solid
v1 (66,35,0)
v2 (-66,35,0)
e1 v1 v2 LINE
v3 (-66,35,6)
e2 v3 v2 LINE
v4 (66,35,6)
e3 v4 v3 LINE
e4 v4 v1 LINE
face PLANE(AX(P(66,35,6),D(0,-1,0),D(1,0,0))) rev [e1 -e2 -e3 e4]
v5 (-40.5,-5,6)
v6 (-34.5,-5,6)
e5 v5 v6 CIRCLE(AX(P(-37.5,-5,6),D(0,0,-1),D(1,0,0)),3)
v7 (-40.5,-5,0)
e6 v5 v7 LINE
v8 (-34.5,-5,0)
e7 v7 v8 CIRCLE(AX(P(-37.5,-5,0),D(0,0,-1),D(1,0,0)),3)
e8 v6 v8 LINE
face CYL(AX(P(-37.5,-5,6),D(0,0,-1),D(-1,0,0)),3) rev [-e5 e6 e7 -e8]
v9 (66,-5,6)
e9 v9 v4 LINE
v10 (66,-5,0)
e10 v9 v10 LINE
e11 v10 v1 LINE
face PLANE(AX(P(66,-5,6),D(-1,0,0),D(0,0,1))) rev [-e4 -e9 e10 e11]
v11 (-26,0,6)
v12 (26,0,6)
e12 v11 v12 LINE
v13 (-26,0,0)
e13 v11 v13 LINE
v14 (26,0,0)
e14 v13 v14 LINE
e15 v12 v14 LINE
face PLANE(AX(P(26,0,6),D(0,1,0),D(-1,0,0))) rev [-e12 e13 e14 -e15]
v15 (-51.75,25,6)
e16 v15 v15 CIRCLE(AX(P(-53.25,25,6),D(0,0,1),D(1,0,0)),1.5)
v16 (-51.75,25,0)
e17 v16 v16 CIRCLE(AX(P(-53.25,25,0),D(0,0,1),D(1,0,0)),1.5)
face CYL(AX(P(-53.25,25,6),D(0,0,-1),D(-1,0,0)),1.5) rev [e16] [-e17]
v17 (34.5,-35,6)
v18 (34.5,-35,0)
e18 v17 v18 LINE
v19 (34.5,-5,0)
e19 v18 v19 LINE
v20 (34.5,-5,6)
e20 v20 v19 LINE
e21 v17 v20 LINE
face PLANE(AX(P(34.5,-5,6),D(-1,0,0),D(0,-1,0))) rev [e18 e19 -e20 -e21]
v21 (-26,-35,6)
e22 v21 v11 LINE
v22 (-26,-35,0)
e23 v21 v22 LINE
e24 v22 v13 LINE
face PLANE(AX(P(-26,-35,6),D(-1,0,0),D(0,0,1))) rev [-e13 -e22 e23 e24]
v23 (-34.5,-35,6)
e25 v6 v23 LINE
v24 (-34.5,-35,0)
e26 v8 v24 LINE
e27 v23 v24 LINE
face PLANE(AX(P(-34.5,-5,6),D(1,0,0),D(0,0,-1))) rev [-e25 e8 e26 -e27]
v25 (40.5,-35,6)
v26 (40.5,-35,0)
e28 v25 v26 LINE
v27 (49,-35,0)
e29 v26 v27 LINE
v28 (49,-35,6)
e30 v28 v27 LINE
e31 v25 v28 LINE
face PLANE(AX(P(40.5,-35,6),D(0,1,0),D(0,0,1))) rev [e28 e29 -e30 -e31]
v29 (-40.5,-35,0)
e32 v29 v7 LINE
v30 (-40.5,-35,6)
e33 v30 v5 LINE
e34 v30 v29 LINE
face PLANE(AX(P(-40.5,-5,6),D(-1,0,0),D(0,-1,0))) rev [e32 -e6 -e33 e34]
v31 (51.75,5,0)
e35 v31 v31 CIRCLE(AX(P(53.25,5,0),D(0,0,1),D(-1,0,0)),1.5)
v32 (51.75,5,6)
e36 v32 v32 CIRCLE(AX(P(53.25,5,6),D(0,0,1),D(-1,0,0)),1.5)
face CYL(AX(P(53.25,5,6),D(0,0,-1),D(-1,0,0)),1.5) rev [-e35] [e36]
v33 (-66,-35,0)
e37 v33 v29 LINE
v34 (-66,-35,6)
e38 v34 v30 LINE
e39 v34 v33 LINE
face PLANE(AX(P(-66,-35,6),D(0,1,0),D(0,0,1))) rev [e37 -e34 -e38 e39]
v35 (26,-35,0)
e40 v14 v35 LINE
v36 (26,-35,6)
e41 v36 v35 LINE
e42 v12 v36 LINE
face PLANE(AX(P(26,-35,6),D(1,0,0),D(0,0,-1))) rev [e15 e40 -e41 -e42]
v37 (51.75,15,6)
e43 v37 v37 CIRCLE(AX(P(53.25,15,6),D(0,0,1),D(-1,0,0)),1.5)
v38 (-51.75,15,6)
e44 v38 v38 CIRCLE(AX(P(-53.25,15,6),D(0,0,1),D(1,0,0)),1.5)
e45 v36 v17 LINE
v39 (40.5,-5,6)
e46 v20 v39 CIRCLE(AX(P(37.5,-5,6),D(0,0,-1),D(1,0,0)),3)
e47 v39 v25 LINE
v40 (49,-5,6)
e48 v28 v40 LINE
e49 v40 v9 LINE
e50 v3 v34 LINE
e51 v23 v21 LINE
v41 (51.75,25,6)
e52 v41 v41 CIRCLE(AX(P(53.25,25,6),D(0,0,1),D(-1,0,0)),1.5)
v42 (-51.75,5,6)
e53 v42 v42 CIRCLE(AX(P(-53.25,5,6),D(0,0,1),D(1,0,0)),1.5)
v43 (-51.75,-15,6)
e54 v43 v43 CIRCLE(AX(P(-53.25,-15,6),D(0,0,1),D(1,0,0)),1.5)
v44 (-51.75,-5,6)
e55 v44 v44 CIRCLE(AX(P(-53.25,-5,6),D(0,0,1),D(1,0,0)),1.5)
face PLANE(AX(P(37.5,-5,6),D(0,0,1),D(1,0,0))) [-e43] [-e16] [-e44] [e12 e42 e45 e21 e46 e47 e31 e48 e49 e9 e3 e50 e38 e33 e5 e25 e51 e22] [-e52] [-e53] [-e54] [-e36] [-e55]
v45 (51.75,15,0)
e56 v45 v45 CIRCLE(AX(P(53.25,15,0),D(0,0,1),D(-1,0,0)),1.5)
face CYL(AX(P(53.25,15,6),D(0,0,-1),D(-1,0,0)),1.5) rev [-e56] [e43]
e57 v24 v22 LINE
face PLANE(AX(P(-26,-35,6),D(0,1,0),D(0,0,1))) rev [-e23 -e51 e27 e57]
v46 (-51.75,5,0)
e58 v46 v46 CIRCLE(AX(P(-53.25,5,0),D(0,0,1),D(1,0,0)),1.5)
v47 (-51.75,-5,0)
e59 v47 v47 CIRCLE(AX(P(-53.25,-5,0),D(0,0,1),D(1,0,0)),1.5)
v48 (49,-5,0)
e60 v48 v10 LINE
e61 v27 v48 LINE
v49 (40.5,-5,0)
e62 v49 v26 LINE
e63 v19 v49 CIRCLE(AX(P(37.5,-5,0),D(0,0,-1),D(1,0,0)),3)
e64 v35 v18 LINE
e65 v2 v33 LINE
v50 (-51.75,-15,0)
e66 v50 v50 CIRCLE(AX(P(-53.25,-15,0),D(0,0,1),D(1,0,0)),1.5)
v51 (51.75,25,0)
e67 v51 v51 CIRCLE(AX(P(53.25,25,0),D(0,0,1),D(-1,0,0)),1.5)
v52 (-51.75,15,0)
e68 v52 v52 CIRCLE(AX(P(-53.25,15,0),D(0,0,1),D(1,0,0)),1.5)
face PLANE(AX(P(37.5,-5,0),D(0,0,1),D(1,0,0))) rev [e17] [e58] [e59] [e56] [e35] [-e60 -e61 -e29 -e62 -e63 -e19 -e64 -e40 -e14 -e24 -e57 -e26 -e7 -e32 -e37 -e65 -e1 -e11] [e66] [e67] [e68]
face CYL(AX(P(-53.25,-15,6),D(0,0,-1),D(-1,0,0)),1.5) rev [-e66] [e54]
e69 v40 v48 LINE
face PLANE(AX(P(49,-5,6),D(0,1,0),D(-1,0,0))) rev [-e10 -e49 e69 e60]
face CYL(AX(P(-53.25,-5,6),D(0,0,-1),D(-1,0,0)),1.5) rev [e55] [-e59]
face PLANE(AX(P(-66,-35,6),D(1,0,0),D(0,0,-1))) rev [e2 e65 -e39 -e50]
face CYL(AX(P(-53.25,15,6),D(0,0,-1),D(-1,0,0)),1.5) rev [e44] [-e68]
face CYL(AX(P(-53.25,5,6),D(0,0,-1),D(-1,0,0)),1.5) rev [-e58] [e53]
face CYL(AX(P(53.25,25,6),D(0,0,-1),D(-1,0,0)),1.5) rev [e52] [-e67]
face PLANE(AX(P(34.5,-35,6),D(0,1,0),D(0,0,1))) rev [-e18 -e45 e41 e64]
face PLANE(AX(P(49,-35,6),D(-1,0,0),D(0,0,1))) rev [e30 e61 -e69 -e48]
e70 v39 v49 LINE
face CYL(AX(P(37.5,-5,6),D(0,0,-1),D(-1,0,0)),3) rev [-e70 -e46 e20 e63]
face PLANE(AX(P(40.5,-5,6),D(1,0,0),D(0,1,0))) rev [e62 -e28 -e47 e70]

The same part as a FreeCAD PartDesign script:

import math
import FreeCAD as App
import Part
import Sketcher
Q = App.Units.Quantity

doc = App.newDocument("Part")
body = doc.addObject("PartDesign::Body", "Body")

# Sketch on XY plane
sketch1 = doc.addObject("Sketcher::SketchObject", "Sketch")
body.addObject(sketch1)
sketch1.AttachmentSupport = (doc.XY_Plane, [""])
sketch1.MapMode = "FlatFace"
sketch1.addGeometry([
    Part.LineSegment(App.Vector(-66, -35, 0), App.Vector(-40.5, -35, 0)),  # 0
    Part.LineSegment(App.Vector(-40.5, -35, 0), App.Vector(-40.5, -5, 0)),  # 1
    Part.ArcOfCircle(Part.Circle(App.Vector(-37.5, -5, 0), App.Vector(0, 0, 1), 3), math.radians(0), math.radians(180)),  # 2
    Part.LineSegment(App.Vector(-34.5, -5, 0), App.Vector(-34.5, -35, 0)),  # 3
    Part.LineSegment(App.Vector(-34.5, -35, 0), App.Vector(-26, -35, 0)),  # 4
    Part.LineSegment(App.Vector(-26, -35, 0), App.Vector(-26, 0, 0)),  # 5
    Part.LineSegment(App.Vector(-26, 0, 0), App.Vector(26, 0, 0)),  # 6
    Part.LineSegment(App.Vector(26, 0, 0), App.Vector(26, -35, 0)),  # 7
    Part.LineSegment(App.Vector(26, -35, 0), App.Vector(34.5, -35, 0)),  # 8
    Part.LineSegment(App.Vector(34.5, -35, 0), App.Vector(34.5, -5, 0)),  # 9
    Part.ArcOfCircle(Part.Circle(App.Vector(37.5, -5, 0), App.Vector(0, 0, 1), 3), math.radians(0), math.radians(180)),  # 10
    Part.LineSegment(App.Vector(40.5, -5, 0), App.Vector(40.5, -35, 0)),  # 11
    Part.LineSegment(App.Vector(40.5, -35, 0), App.Vector(49, -35, 0)),  # 12
    Part.LineSegment(App.Vector(49, -35, 0), App.Vector(49, -5, 0)),  # 13
    Part.LineSegment(App.Vector(49, -5, 0), App.Vector(66, -5, 0)),  # 14
    Part.LineSegment(App.Vector(66, -5, 0), App.Vector(66, 35, 0)),  # 15
    Part.LineSegment(App.Vector(66, 35, 0), App.Vector(-66, 35, 0)),  # 16
    Part.LineSegment(App.Vector(-66, 35, 0), App.Vector(-66, -35, 0)),  # 17
    Part.Circle(App.Vector(-53.2, -15, 0), App.Vector(0, 0, 1), 1.5),  # 18
    Part.Circle(App.Vector(-53.2, -5, 0), App.Vector(0, 0, 1), 1.5),  # 19
    Part.Circle(App.Vector(-53.2, 5, 0), App.Vector(0, 0, 1), 1.5),  # 20
    Part.Circle(App.Vector(-53.2, 15, 0), App.Vector(0, 0, 1), 1.5),  # 21
    Part.Circle(App.Vector(-53.2, 25, 0), App.Vector(0, 0, 1), 1.5),  # 22
    Part.Circle(App.Vector(53.2, 5, 0), App.Vector(0, 0, 1), 1.5),  # 23
    Part.Circle(App.Vector(53.2, 15, 0), App.Vector(0, 0, 1), 1.5),  # 24
    Part.Circle(App.Vector(53.2, 25, 0), App.Vector(0, 0, 1), 1.5),  # 25
], False)
sketch1.addConstraint([
    Sketcher.Constraint("Coincident", 0, 2, 1, 1),
    Sketcher.Constraint("Tangent", 1, 2, 2, 2),
    Sketcher.Constraint("Tangent", 2, 1, 3, 1),
    Sketcher.Constraint("Coincident", 3, 2, 4, 1),
    Sketcher.Constraint("Coincident", 4, 2, 5, 1),
    Sketcher.Constraint("Coincident", 5, 2, 6, 1),
    Sketcher.Constraint("Coincident", 6, 2, 7, 1),
    Sketcher.Constraint("Coincident", 7, 2, 8, 1),
    Sketcher.Constraint("Coincident", 8, 2, 9, 1),
    Sketcher.Constraint("Tangent", 9, 2, 10, 2),
    Sketcher.Constraint("Tangent", 10, 1, 11, 1),
    Sketcher.Constraint("Coincident", 11, 2, 12, 1),
    Sketcher.Constraint("Coincident", 12, 2, 13, 1),
    Sketcher.Constraint("Coincident", 13, 2, 14, 1),
    Sketcher.Constraint("Coincident", 14, 2, 15, 1),
    Sketcher.Constraint("Coincident", 15, 2, 16, 1),
    Sketcher.Constraint("Coincident", 16, 2, 17, 1),
    Sketcher.Constraint("Coincident", 17, 2, 0, 1),
    Sketcher.Constraint("Horizontal", 0),
    Sketcher.Constraint("Vertical", 1),
    Sketcher.Constraint("Vertical", 3),
    Sketcher.Constraint("Horizontal", 4),
    Sketcher.Constraint("Vertical", 5),
    Sketcher.Constraint("Horizontal", 6),
    Sketcher.Constraint("Vertical", 7),
    Sketcher.Constraint("Horizontal", 8),
    Sketcher.Constraint("Vertical", 9),
    Sketcher.Constraint("Vertical", 11),
    Sketcher.Constraint("Horizontal", 12),
    Sketcher.Constraint("Vertical", 13),
    Sketcher.Constraint("Horizontal", 14),
    Sketcher.Constraint("Vertical", 15),
    Sketcher.Constraint("Horizontal", 16),
    Sketcher.Constraint("Vertical", 17),
    Sketcher.Constraint("Equal", 2, 10),
    Sketcher.Constraint("Equal", 18, 19),
    Sketcher.Constraint("Equal", 19, 20),
    Sketcher.Constraint("Equal", 20, 21),
    Sketcher.Constraint("Equal", 21, 22),
    Sketcher.Constraint("Equal", 22, 23),
    Sketcher.Constraint("Equal", 23, 24),
    Sketcher.Constraint("Equal", 24, 25),
    Sketcher.Constraint("Symmetric", 19, 3, 23, 3, -1, 1),
    Sketcher.Constraint("Symmetric", 18, 3, 24, 3, -1, 1),
    Sketcher.Constraint("Symmetric", 5, 2, 6, 2, -1, 1),
    Sketcher.Constraint("Symmetric", 15, 2, 17, 2, -1, 1),
    Sketcher.Constraint("Symmetric", 2, 3, 10, 3, -2),
    Sketcher.Constraint("Symmetric", 20, 3, 23, 3, -2),
    Sketcher.Constraint("Symmetric", 21, 3, 24, 3, -2),
    Sketcher.Constraint("Symmetric", 22, 3, 25, 3, -2),
    Sketcher.Constraint("Horizontal", 10, 3, 19, 3),
    Sketcher.Constraint("Horizontal", 0, 2, 3, 2),
    Sketcher.Constraint("Horizontal", 4, 2, 7, 2),
    Sketcher.Constraint("Horizontal", 8, 2, 11, 2),
    Sketcher.Constraint("Horizontal", 10, 1, 13, 2),
    Sketcher.Constraint("Vertical", 18, 3, 19, 3),
    Sketcher.Constraint("Vertical", 21, 3, 22, 3),
    Sketcher.Constraint("Equal", 8, 12),
    Sketcher.Constraint("Diameter", 18, Q("3 mm")),
    Sketcher.Constraint("Radius", 2, Q("3 mm")),
    Sketcher.Constraint("DistanceX", 6, 1, 6, 2, Q("52 mm")),
    Sketcher.Constraint("DistanceX", 14, 1, 14, 2, Q("17 mm")),
    Sketcher.Constraint("DistanceX", 16, 2, 16, 1, Q("132 mm")),
    Sketcher.Constraint("DistanceY", 1, 1, 1, 2, Q("30 mm")),
    Sketcher.Constraint("DistanceY", 5, 1, 5, 2, Q("35 mm")),
    Sketcher.Constraint("DistanceY", 18, 3, -1, 1, Q("15 mm")),
    Sketcher.Constraint("DistanceY", -1, 1, 22, 3, Q("25 mm")),
    Sketcher.Constraint("DistanceX", 20, 3, 23, 3, Q("106.5 mm")),
])
pad1 = doc.addObject("PartDesign::Pad", "Pad")
body.addObject(pad1)
pad1.Profile = sketch1
pad1.Length = 6

doc.recompute()
